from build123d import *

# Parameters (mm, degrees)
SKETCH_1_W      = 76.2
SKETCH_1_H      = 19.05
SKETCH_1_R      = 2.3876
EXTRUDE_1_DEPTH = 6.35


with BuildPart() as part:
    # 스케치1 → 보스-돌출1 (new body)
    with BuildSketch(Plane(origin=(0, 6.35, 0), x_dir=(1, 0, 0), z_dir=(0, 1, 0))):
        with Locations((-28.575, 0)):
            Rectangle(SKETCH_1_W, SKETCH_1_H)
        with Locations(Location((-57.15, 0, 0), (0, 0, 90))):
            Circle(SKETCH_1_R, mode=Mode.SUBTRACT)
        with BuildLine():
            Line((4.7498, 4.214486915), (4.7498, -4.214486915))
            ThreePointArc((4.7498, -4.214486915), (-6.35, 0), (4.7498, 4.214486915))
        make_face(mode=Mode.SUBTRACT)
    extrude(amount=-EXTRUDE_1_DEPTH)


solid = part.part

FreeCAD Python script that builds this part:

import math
import FreeCAD as App
import Part
import Sketcher

V = App.Vector
Q = App.Units.Quantity


def add_polygon(sketch, points):
    """Adds a closed chain of lines whose ends are joined by coincident constraints."""
    first, n = sketch.GeometryCount, len(points)
    for a, b in zip(points, points[1:] + points[:1]):
        sketch.addGeometry(Part.LineSegment(App.Vector(*a, 0), App.Vector(*b, 0)), False)
    for i in range(n):
        sketch.addConstraint(Sketcher.Constraint("Coincident", first + i, 2, first + (i + 1) % n, 1))

doc = App.newDocument("Part")
body = doc.addObject("PartDesign::Body", "Body")

# Sketch on XZ plane
sketch1 = body.newObject("Sketcher::SketchObject", "Sketch")
sketch1.AttachmentSupport = (doc.getObject("XZ_Plane"), [""])
sketch1.MapMode = "FlatFace"
sketch1.AttachmentOffset = App.Placement(V(0, 0, -0.25 * 25.4), App.Rotation())
add_polygon(sketch1, [(-66.7, -9.5), (-66.7, 9.5), (9.5, 9.5), (9.5, -9.5)])  # lines 0-3
sketch1.addGeometry(Part.Circle(V(-57.1, 0, 0), V(0, 0, 1), 2.4), False)  # 4
sketch1.addGeometry(Part.ArcOfCircle(Part.Circle(V(0, 0, 0), V(0, 0, 1), 6.3), math.radians(42), math.radians(318)), False)  # 5
sketch1.addGeometry(Part.LineSegment(V(4.7, -4.2, 0), V(4.7, 4.2, 0)), False)  # 6
sketch1.addConstraint([
    Sketcher.Constraint("Coincident", 5, 1, 6, 2),
    Sketcher.Constraint("Coincident", 6, 1, 5, 2),
    Sketcher.Constraint("Vertical", 0),
    Sketcher.Constraint("Horizontal", 1),
    Sketcher.Constraint("Vertical", 2),
    Sketcher.Constraint("Horizontal", 3),
    Sketcher.Constraint("Vertical", 6),
    Sketcher.Constraint("Coincident", 5, 3, -1, 1),
    Sketcher.Constraint("PointOnObject", 4, 3, -1),
    Sketcher.Constraint("DistanceX", 1, 1, 1, 2, Q("3 in")),
    Sketcher.Constraint("Radius", 5, Q("0.25 in")),
    Sketcher.Constraint("Diameter", 4, Q("0.188 in")),
    Sketcher.Constraint("DistanceY", 0, 1, 0, 2, Q("0.75 in")),
    Sketcher.Constraint("DistanceX", 4, 3, -1, 1, Q("2.25 in")),
    Sketcher.Constraint("DistanceX", 0, 2, -1, 1, Q("2.625 in")),
    Sketcher.Constraint("DistanceY", -1, 1, 0, 2, Q("0.375 in")),
    Sketcher.Constraint("DistanceX", -1, 1, 5, 1, Q("0.187 in")),
])
pad1 = body.newObject("PartDesign::Pad", "Pad")
pad1.Profile = sketch1
pad1.Length = Q("0.25 in")

doc.recompute()
